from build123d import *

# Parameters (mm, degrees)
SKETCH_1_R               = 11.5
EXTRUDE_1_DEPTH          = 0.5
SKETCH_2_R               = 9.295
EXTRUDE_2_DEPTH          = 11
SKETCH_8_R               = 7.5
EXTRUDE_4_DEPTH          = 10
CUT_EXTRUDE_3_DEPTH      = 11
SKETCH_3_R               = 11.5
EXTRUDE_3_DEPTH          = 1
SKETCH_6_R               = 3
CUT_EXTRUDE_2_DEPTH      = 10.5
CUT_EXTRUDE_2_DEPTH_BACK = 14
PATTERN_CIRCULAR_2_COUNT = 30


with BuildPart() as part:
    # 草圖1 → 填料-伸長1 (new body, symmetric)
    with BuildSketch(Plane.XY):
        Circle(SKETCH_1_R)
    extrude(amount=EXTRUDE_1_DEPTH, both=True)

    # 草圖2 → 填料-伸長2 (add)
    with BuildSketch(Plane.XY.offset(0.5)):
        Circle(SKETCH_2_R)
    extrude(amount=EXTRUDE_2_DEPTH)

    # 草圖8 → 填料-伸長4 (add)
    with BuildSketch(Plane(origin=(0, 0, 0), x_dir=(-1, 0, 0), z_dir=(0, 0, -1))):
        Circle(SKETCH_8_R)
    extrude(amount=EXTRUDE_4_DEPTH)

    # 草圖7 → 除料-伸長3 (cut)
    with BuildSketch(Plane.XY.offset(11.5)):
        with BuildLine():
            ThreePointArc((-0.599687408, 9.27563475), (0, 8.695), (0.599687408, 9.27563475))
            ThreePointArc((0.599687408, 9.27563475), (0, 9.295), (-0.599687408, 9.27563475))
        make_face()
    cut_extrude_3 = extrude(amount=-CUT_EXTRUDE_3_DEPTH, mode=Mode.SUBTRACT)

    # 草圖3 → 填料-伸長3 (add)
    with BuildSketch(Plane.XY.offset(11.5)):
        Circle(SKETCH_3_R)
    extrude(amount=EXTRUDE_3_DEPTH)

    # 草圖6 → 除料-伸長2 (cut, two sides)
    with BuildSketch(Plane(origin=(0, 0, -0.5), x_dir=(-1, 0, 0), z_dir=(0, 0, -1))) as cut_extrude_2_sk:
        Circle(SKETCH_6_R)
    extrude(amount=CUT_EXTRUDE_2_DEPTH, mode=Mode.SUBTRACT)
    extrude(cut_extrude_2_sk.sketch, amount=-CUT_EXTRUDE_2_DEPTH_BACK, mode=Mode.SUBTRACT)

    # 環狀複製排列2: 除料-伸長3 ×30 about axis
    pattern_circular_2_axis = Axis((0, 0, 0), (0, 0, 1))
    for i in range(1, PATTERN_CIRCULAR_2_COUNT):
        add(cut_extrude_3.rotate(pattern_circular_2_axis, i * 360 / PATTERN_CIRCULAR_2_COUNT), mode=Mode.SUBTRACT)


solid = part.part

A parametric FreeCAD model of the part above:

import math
import FreeCAD as App
import Part
import Sketcher
Q = App.Units.Quantity

doc = App.newDocument("Part")
body = doc.addObject("PartDesign::Body", "Body")

# Sketch on XY plane
sketch1 = doc.addObject("Sketcher::SketchObject", "Sketch")
body.addObject(sketch1)
sketch1.AttachmentSupport = (doc.XY_Plane, [""])
sketch1.MapMode = "FlatFace"
sketch1.addGeometry(Part.Circle(App.Vector(0, 0, 0), App.Vector(0, 0, 1), 12), False)
sketch1.addConstraint([
    Sketcher.Constraint("Coincident", 0, 3, -1, 1),
    Sketcher.Constraint("Diameter", 0, Q("23 mm")),
])
pad1 = doc.addObject("PartDesign::Pad", "Pad")
body.addObject(pad1)
pad1.Profile = sketch1
pad1.Length = 1
pad1.Midplane = True

# Sketch on XY plane
sketch2 = doc.addObject("Sketcher::SketchObject", "Sketch001")
body.addObject(sketch2)
sketch2.AttachmentSupport = (doc.XY_Plane, [""])
sketch2.MapMode = "FlatFace"
sketch2.AttachmentOffset = App.Placement(App.Vector(0, 0, 0.5), App.Rotation())
sketch2.addGeometry(Part.Circle(App.Vector(0, 0, 0), App.Vector(0, 0, 1), 9), False)
sketch2.addConstraint([
    Sketcher.Constraint("Coincident", 0, 3, -1, 1),
    Sketcher.Constraint("Diameter", 0, Q("18.59 mm")),
])
pad2 = doc.addObject("PartDesign::Pad", "Pad001")
body.addObject(pad2)
pad2.Profile = sketch2
pad2.Length = 11

# Sketch on XY plane
sketch3 = doc.addObject("Sketcher::SketchObject", "Sketch002")
body.addObject(sketch3)
sketch3.AttachmentSupport = (doc.XY_Plane, [""])
sketch3.MapMode = "FlatFace"
sketch3.addGeometry(Part.Circle(App.Vector(0, 0, 0), App.Vector(0, 0, 1), 8), False)
sketch3.addConstraint([
    Sketcher.Constraint("Coincident", 0, 3, -1, 1),
    Sketcher.Constraint("Diameter", 0, Q("15 mm")),
])
pad3 = doc.addObject("PartDesign::Pad", "Pad002")
body.addObject(pad3)
pad3.Profile = sketch3
pad3.Length = 10
pad3.Reversed = True

# Sketch on XY plane
sketch4 = doc.addObject("Sketcher::SketchObject", "Sketch003")
body.addObject(sketch4)
sketch4.AttachmentSupport = (doc.XY_Plane, [""])
sketch4.MapMode = "FlatFace"
sketch4.AttachmentOffset = App.Placement(App.Vector(0, 0, 11.5), App.Rotation())
sketch4.addGeometry([
    Part.ArcOfCircle(Part.Circle(App.Vector(0, 9.3, 0), App.Vector(0, 0, 1), 0.6), math.radians(-178), math.radians(-2)),
    Part.ArcOfCircle(Part.Circle(App.Vector(0, 0, 0), App.Vector(0, 0, 1), 9.3), math.radians(86.3), math.radians(93.7)),
], False)
sketch4.addConstraint([
    Sketcher.Constraint("Coincident", 0, 1, 1, 2),
    Sketcher.Constraint("Coincident", 1, 1, 0, 2),
    Sketcher.Constraint("Coincident", 1, 3, -1, 1),
    Sketcher.Constraint("PointOnObject", 0, 3, -2),
    Sketcher.Constraint("Radius", 0, Q("0.6 mm")),
    Sketcher.Constraint("Radius", 1, Q("9.295 mm")),
    Sketcher.Constraint("DistanceY", -1, 1, 0, 3, Q("9.295 mm")),
])
pocket1 = doc.addObject("PartDesign::Pocket", "Pocket")
body.addObject(pocket1)
pocket1.Profile = sketch4
pocket1.Length = 11

# Sketch on XY plane
sketch5 = doc.addObject("Sketcher::SketchObject", "Sketch004")
body.addObject(sketch5)
sketch5.AttachmentSupport = (doc.XY_Plane, [""])
sketch5.MapMode = "FlatFace"
sketch5.AttachmentOffset = App.Placement(App.Vector(0, 0, 11.5), App.Rotation())
sketch5.addGeometry(Part.Circle(App.Vector(0, 0, 0), App.Vector(0, 0, 1), 12), False)
sketch5.addConstraint([
    Sketcher.Constraint("Coincident", 0, 3, -1, 1),
    Sketcher.Constraint("Diameter", 0, Q("23 mm")),
])
pad4 = doc.addObject("PartDesign::Pad", "Pad003")
body.addObject(pad4)
pad4.Profile = sketch5
pad4.Length = 1

# Sketch on XY plane
sketch6 = doc.addObject("Sketcher::SketchObject", "Sketch005")
body.addObject(sketch6)
sketch6.AttachmentSupport = (doc.XY_Plane, [""])
sketch6.MapMode = "FlatFace"
sketch6.AttachmentOffset = App.Placement(App.Vector(0, 0, -0.5), App.Rotation())
sketch6.addGeometry(Part.Circle(App.Vector(0, 0, 0), App.Vector(0, 0, 1), 3), False)
sketch6.addConstraint([
    Sketcher.Constraint("Coincident", 0, 3, -1, 1),
    Sketcher.Constraint("Diameter", 0, Q("6 mm")),
])
pocket2 = doc.addObject("PartDesign::Pocket", "Pocket001")
body.addObject(pocket2)
pocket2.Profile = sketch6
pocket2.Type = "ThroughAll"
pocket2.Midplane = True
doc.recompute()

polarpattern = doc.addObject("PartDesign::PolarPattern", "PolarPattern")
body.addObject(polarpattern)
polarpattern.Originals = [pocket1]
polarpattern.Axis = (doc.Z_Axis, [""])
polarpattern.Angle = 360
polarpattern.Occurrences = 30
body.Tip = polarpattern

doc.recompute()
